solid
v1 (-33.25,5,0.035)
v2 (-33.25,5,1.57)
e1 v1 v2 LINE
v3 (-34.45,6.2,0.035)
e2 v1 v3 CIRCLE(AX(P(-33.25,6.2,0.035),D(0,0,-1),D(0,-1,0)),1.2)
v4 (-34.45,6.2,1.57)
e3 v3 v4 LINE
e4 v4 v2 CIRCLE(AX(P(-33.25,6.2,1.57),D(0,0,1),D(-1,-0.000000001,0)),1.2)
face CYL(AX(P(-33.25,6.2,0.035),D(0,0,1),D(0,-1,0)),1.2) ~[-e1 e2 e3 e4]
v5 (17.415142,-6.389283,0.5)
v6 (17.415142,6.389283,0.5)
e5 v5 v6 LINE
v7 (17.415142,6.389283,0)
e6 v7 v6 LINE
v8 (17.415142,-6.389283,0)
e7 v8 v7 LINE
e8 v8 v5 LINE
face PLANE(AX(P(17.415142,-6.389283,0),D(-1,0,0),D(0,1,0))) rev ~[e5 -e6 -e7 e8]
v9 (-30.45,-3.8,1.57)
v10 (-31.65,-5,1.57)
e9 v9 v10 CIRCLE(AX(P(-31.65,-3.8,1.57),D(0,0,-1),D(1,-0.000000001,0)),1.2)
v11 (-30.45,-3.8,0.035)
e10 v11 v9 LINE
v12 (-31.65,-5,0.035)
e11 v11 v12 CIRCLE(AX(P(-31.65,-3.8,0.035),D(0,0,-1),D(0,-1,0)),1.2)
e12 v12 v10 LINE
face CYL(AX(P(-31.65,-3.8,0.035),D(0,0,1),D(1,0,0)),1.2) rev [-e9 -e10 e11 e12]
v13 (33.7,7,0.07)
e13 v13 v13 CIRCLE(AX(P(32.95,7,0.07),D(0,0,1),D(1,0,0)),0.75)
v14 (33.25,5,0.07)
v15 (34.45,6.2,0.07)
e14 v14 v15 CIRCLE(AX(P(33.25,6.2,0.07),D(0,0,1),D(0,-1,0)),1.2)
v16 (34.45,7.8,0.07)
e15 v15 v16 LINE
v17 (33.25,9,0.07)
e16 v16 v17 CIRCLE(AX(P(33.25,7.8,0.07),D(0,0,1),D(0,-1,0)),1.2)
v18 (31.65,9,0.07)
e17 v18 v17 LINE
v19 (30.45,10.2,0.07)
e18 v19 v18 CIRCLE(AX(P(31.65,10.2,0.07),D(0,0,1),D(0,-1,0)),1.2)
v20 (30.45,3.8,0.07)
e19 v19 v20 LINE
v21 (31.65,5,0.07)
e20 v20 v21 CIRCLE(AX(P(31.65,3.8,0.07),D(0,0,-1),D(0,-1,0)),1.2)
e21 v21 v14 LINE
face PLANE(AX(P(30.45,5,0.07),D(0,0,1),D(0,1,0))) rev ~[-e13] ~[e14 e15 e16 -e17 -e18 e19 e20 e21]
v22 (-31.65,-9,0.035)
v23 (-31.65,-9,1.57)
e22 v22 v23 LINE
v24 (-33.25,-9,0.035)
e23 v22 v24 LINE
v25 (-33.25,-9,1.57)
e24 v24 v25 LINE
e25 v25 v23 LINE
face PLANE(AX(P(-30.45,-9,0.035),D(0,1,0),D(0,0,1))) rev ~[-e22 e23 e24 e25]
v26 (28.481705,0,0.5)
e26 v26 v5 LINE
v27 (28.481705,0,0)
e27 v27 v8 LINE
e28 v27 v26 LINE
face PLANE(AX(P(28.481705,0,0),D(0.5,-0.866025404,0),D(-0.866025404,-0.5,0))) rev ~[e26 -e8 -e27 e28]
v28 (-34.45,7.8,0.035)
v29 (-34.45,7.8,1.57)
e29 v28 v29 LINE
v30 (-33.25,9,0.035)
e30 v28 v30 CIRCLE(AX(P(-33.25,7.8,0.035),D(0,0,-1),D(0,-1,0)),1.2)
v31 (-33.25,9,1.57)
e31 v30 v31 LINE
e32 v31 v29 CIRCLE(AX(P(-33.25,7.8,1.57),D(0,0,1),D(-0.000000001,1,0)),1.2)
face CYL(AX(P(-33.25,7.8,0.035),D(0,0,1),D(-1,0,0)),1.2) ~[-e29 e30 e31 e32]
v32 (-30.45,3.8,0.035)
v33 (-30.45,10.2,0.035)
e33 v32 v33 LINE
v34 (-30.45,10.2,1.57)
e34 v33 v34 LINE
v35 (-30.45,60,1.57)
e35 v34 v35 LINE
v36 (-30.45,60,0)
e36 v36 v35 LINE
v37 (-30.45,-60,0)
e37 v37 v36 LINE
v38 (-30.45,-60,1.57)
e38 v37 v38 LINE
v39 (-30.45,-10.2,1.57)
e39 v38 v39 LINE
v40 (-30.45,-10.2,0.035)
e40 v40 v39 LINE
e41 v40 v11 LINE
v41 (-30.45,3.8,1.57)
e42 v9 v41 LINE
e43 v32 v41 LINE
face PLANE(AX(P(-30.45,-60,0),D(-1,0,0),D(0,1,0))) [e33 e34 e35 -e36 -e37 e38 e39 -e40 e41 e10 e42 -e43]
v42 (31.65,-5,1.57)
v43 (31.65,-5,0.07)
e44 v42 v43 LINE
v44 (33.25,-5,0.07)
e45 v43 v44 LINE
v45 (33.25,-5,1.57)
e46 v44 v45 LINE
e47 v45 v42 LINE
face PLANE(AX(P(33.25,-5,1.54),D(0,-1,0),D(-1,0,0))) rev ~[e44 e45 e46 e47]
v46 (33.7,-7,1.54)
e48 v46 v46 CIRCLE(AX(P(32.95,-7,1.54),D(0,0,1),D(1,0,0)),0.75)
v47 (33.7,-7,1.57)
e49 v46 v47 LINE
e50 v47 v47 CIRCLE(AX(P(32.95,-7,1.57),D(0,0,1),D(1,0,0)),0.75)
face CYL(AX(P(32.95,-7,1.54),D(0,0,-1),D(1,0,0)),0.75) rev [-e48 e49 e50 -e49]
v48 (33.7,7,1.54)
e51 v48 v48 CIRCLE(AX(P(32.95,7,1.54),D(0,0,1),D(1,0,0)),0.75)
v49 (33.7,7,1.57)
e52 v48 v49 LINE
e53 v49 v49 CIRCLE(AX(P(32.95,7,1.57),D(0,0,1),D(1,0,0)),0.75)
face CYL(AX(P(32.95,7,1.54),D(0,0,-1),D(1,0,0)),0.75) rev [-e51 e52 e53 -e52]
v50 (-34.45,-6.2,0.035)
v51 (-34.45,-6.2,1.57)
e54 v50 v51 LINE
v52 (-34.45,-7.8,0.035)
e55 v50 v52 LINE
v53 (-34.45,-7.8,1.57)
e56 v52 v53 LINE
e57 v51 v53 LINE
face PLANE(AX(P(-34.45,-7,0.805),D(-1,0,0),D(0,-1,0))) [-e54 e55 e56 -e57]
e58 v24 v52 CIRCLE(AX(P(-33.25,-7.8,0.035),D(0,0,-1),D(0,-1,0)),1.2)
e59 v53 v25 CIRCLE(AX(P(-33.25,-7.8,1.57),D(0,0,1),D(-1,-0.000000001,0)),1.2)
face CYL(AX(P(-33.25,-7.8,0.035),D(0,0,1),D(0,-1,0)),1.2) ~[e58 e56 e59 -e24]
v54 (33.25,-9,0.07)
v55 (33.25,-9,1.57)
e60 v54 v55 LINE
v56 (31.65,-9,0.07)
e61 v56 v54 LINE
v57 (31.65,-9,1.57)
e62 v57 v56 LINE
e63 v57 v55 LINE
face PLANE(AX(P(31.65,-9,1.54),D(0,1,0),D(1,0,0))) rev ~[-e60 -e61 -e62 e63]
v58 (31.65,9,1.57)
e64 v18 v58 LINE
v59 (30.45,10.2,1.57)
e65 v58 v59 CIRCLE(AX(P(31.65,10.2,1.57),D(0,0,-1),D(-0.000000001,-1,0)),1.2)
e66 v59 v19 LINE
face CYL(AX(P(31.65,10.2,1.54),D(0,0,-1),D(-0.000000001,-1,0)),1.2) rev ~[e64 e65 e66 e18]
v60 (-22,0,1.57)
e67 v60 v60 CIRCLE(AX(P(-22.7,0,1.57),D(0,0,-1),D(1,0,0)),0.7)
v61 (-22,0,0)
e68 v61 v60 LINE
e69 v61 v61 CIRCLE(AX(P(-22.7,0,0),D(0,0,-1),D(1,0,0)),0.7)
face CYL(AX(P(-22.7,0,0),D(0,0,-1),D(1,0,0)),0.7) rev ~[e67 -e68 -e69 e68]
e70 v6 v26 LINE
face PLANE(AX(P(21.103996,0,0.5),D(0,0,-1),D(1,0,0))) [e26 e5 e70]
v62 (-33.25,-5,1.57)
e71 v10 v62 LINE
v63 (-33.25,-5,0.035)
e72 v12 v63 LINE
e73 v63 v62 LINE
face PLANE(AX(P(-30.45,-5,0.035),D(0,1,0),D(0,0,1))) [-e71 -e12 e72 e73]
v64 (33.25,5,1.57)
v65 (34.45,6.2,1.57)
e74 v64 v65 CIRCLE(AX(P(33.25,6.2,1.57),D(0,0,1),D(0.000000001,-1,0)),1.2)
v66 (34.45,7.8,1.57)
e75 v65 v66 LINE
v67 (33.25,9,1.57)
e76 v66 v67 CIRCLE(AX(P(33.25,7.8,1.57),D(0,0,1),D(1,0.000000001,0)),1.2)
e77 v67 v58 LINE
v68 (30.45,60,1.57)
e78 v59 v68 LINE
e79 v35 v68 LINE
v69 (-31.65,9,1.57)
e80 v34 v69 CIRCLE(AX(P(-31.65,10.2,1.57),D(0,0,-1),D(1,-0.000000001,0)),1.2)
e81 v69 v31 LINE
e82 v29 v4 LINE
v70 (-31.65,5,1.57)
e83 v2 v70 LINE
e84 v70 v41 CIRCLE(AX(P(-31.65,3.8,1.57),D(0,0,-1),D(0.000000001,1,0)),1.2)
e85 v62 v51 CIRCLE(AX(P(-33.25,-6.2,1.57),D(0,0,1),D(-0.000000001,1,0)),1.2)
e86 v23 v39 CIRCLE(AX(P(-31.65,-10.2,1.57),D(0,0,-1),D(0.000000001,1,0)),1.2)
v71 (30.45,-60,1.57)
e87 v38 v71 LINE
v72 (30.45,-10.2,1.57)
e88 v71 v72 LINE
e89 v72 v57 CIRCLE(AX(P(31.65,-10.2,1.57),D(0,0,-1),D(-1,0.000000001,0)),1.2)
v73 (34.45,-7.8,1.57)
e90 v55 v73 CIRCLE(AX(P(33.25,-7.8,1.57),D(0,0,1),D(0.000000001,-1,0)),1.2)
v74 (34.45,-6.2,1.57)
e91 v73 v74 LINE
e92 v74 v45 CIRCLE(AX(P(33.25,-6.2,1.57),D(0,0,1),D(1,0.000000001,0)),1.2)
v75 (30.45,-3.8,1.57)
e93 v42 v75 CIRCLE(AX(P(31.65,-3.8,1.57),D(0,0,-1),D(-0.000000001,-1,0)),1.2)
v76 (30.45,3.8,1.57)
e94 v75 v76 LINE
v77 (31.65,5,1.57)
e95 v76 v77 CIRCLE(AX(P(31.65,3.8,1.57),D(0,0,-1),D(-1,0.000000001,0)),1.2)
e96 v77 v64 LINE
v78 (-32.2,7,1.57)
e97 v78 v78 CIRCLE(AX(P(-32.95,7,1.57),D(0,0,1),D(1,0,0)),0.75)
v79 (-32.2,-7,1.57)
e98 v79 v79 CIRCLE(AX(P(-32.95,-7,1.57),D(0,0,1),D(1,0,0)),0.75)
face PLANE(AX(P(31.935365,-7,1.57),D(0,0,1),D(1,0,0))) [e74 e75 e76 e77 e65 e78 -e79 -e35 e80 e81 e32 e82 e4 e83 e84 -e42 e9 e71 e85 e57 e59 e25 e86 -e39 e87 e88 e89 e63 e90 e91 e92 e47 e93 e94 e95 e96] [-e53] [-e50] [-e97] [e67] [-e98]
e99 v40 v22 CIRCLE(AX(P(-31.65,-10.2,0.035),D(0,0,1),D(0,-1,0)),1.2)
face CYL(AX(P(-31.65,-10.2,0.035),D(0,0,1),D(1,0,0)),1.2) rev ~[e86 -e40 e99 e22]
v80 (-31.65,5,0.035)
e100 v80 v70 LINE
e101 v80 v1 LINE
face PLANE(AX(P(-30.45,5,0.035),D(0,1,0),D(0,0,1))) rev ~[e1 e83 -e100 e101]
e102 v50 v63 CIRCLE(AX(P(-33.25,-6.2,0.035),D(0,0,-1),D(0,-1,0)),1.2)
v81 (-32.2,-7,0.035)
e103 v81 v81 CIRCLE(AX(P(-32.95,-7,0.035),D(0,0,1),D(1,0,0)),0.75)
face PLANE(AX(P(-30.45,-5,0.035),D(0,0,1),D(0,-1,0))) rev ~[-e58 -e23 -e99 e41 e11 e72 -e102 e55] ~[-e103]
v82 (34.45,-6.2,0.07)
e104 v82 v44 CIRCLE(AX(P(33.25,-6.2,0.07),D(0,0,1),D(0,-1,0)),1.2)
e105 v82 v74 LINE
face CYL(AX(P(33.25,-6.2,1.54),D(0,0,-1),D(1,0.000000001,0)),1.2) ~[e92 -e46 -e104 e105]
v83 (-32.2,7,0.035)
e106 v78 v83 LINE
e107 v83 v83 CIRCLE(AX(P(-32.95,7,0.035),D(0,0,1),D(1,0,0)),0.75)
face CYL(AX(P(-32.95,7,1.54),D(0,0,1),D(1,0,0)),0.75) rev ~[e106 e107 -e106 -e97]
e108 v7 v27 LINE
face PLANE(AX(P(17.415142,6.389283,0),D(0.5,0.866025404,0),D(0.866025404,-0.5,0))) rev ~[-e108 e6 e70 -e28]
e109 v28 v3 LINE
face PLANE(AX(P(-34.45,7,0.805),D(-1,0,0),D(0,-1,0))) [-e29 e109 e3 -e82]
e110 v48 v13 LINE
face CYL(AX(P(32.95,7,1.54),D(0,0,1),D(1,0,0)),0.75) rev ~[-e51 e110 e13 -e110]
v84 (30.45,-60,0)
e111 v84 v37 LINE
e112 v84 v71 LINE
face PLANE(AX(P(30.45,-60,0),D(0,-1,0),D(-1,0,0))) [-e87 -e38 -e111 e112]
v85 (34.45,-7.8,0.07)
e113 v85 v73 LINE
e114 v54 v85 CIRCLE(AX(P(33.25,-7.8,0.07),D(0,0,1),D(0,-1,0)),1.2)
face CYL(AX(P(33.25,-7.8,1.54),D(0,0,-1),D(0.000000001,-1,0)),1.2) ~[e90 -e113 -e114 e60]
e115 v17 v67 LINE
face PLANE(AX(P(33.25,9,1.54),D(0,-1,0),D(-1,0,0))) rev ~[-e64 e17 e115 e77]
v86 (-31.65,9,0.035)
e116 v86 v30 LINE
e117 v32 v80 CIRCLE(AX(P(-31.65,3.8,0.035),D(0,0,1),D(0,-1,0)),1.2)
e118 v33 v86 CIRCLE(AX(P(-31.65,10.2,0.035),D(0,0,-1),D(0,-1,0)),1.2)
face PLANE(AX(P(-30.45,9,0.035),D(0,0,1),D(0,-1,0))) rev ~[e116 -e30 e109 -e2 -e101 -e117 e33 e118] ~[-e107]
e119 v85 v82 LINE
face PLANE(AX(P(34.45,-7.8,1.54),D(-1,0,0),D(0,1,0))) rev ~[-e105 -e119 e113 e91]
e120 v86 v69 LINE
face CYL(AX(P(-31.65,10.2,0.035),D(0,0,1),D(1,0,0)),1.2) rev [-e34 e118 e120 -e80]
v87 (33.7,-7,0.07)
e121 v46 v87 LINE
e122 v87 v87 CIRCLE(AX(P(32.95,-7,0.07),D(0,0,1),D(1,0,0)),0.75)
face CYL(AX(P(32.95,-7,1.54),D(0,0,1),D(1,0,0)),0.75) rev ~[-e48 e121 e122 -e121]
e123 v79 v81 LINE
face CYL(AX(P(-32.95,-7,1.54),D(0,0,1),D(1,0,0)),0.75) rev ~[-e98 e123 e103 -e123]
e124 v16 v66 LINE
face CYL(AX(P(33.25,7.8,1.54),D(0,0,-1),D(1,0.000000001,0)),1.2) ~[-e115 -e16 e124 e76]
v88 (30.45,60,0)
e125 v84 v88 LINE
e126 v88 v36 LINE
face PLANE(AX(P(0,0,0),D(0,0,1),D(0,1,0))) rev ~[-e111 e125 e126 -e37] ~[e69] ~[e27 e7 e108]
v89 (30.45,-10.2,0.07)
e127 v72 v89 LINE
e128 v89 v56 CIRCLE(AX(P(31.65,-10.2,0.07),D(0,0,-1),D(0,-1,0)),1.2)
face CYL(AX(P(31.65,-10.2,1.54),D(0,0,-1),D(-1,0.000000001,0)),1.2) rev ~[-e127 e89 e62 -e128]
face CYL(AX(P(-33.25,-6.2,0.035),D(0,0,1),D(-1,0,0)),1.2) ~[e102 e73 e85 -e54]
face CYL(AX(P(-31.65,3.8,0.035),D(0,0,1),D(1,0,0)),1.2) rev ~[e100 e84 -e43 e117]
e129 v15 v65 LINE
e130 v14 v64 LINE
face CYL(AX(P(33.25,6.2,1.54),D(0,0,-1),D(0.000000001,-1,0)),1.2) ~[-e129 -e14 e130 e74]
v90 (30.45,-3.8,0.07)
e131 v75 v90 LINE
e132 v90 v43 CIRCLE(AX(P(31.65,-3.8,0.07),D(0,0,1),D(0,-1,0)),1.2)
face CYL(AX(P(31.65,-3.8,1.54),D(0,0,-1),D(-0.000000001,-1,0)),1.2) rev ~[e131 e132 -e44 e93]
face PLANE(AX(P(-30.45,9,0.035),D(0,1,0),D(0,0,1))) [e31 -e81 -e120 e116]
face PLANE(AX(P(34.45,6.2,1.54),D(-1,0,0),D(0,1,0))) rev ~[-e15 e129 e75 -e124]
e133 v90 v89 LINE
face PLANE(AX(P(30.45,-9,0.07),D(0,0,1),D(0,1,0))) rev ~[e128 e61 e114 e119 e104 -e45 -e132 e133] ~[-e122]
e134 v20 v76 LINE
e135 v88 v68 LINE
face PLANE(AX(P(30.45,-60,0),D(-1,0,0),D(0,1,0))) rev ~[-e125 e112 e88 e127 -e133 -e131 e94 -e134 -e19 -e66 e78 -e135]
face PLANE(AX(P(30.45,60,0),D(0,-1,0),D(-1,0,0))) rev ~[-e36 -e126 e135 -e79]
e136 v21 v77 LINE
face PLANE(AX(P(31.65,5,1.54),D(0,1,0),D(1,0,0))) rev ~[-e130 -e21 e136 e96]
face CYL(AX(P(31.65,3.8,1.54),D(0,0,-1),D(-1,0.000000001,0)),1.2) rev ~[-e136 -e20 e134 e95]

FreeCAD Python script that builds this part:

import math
import FreeCAD as App
import Part
import Sketcher

V = App.Vector
Q = App.Units.Quantity


def edges_at(feature, points):
    """Names of the edges that pass closest to the given points."""
    edges = feature.Shape.Edges
    near = lambda p: min(range(len(edges)), key=lambda i: edges[i].distToShape(Part.Vertex(*p))[0])
    return sorted({f"Edge{near(p) + 1}" for p in points})

doc = App.newDocument("Part")
params = doc.addObject("Spreadsheet::Sheet", "Params")
for row, (alias, value) in enumerate([
    ("sketch1_height", "120 mm"),
    ("sketch1_width", "60.9 mm"),
    ("pad1_length", "1.61 mm"),
    ("pocket1_length", "0.5 mm"),
    ("sketch3_width", "4 mm"),
    ("sketch3_height", "1.54 mm"),
    ("pad2_length", "4 mm"),
    ("sketch4_width", "4 mm"),
    ("sketch4_height", "1.47 mm"),
    ("pad3_length", "4 mm"),
    ("sketch5_diameter", "1.5 mm"),
    ("fillet_radius", "1.2 mm"),
    ("fillet2_radius", "1.2 mm"),
    ("sketch6_diameter", "1.4 mm"),
    ("sketch7_height", "120 mm"),
    ("sketch7_width", "60.9 mm"),
    ("pocket4_length", "0.04 mm"),
    ("sketch8_diameter", "1.5 mm"),
    ("sketch8_radius", "1.2 mm"),
    ("sketch8_width", "1.6 mm"),
    ("pad4_length", "0.03 mm"),
    ("sketch9_diameter", "1.5 mm"),
    ("sketch9_radius", "1.2 mm"),
    ("sketch9_width", "1.6 mm"),
    ("pocket5_length", "0.005 mm"),
], start=1):
    params.set(f"A{row}", alias)
    params.set(f"B{row}", "=" + value)
    params.setAlias(f"B{row}", alias)

body = doc.addObject("PartDesign::Body", "Body")

# Sketch on XY plane
sketch1 = body.newObject("Sketcher::SketchObject", "Sketch")
sketch1.AttachmentSupport = (doc.getObject("XY_Plane"), [""])
sketch1.MapMode = "FlatFace"
sketch1.addGeometry(Part.LineSegment(V(-30, -60, 0), V(30, -60, 0)), False)
sketch1.addGeometry(Part.LineSegment(V(30, -60, 0), V(30, 60, 0)), False)
sketch1.addGeometry(Part.LineSegment(V(30, 60, 0), V(-30, 60, 0)), False)
sketch1.addGeometry(Part.LineSegment(V(-30, 60, 0), V(-30, -60, 0)), False)
sketch1.addConstraint(Sketcher.Constraint("Coincident", 0, 2, 1, 1))
sketch1.addConstraint(Sketcher.Constraint("Coincident", 1, 2, 2, 1))
sketch1.addConstraint(Sketcher.Constraint("Coincident", 2, 2, 3, 1))
sketch1.addConstraint(Sketcher.Constraint("Coincident", 3, 2, 0, 1))
sketch1.addConstraint(Sketcher.Constraint("Horizontal", 0))
sketch1.addConstraint(Sketcher.Constraint("Vertical", 1))
sketch1.addConstraint(Sketcher.Constraint("Horizontal", 2))
sketch1.addConstraint(Sketcher.Constraint("Vertical", 3))
sketch1.addConstraint(Sketcher.Constraint("Symmetric", 0, 2, 2, 2, -1, 1))
sketch1.addConstraint(Sketcher.Constraint("DistanceY", 1, 1, 1, 2, 120.0))
sketch1.addConstraint(Sketcher.Constraint("DistanceX", 0, 1, 0, 2, 60.9))
sketch1.setExpression("Constraints[9]", "Params.sketch1_height")
sketch1.setExpression("Constraints[10]", "Params.sketch1_width")
pad1 = body.newObject("PartDesign::Pad", "Pad")
pad1.Profile = sketch1
pad1.setExpression("Length", "Params.pad1_length")

# Sketch on XY plane
sketch2 = body.newObject("Sketcher::SketchObject", "Sketch001")
sketch2.AttachmentSupport = (doc.getObject("XY_Plane"), [""])
sketch2.MapMode = "FlatFace"
sketch2.addGeometry(Part.LineSegment(V(28, 0, 0), V(17, -6, 0)), False)
sketch2.addGeometry(Part.LineSegment(V(17, -6, 0), V(17, 6, 0)), False)
sketch2.addGeometry(Part.LineSegment(V(17, 6, 0), V(28, 0, 0)), False)
sketch2.addConstraint(Sketcher.Constraint("Coincident", 0, 2, 1, 1))
sketch2.addConstraint(Sketcher.Constraint("Coincident", 1, 2, 2, 1))
sketch2.addConstraint(Sketcher.Constraint("Coincident", 2, 2, 0, 1))
sketch2.addConstraint(Sketcher.Constraint("Vertical", 1))
sketch2.addConstraint(Sketcher.Constraint("PointOnObject", 2, 2, -1))
sketch2.addConstraint(Sketcher.Constraint("Equal", 0, 2))
sketch2.addConstraint(Sketcher.Constraint("Angle", 0, Q("-150 deg")))
sketch2.addConstraint(Sketcher.Constraint("DistanceY", 1, 1, 1, 2, 12.778566))
sketch2.addConstraint(Sketcher.Constraint("DistanceX", -1, 1, 0, 2, 17.415142))
pocket1 = body.newObject("PartDesign::Pocket", "Pocket")
pocket1.Profile = sketch2
pocket1.setExpression("Length", "Params.pocket1_length")
pocket1.Reversed = True

# Sketch on YZ plane
sketch3 = body.newObject("Sketcher::SketchObject", "Sketch002")
sketch3.AttachmentSupport = (doc.getObject("YZ_Plane"), [""])
sketch3.MapMode = "FlatFace"
sketch3.AttachmentOffset = App.Placement(V(0, 0, -30.45), App.Rotation())
sketch3.addGeometry(Part.LineSegment(V(9, 1.6, 0), V(9, 0, 0)), False)
sketch3.addGeometry(Part.LineSegment(V(9, 0, 0), V(5, 0, 0)), False)
sketch3.addGeometry(Part.LineSegment(V(5, 0, 0), V(5, 1.6, 0)), False)
sketch3.addGeometry(Part.LineSegment(V(5, 1.6, 0), V(9, 1.6, 0)), False)
sketch3.addGeometry(Part.LineSegment(V(-5, 1.6, 0), V(-5, 0, 0)), False)
sketch3.addGeometry(Part.LineSegment(V(-5, 0, 0), V(-9, 0, 0)), False)
sketch3.addGeometry(Part.LineSegment(V(-9, 0, 0), V(-9, 1.6, 0)), False)
sketch3.addGeometry(Part.LineSegment(V(-9, 1.6, 0), V(-5, 1.6, 0)), False)
sketch3.addConstraint(Sketcher.Constraint("Coincident", 0, 2, 1, 1))
sketch3.addConstraint(Sketcher.Constraint("Coincident", 1, 2, 2, 1))
sketch3.addConstraint(Sketcher.Constraint("Coincident", 2, 2, 3, 1))
sketch3.addConstraint(Sketcher.Constraint("Coincident", 3, 2, 0, 1))
sketch3.addConstraint(Sketcher.Constraint("Coincident", 4, 2, 5, 1))
sketch3.addConstraint(Sketcher.Constraint("Coincident", 5, 2, 6, 1))
sketch3.addConstraint(Sketcher.Constraint("Coincident", 6, 2, 7, 1))
sketch3.addConstraint(Sketcher.Constraint("Coincident", 7, 2, 4, 1))
sketch3.addConstraint(Sketcher.Constraint("Vertical", 0))
sketch3.addConstraint(Sketcher.Constraint("Horizontal", 1))
sketch3.addConstraint(Sketcher.Constraint("Vertical", 2))
sketch3.addConstraint(Sketcher.Constraint("Horizontal", 3))
sketch3.addConstraint(Sketcher.Constraint("Vertical", 4))
sketch3.addConstraint(Sketcher.Constraint("Horizontal", 5))
sketch3.addConstraint(Sketcher.Constraint("Vertical", 6))
sketch3.addConstraint(Sketcher.Constraint("Horizontal", 7))
sketch3.addConstraint(Sketcher.Constraint("Symmetric", 1, 2, 4, 2, -2))
sketch3.addConstraint(Sketcher.Constraint("Symmetric", 3, 2, 6, 2, -2))
sketch3.addConstraint(Sketcher.Constraint("DistanceX", 1, 2, 1, 1, 4.0))
sketch3.addConstraint(Sketcher.Constraint("DistanceX", -1, 1, 0, 2, 9.0))
sketch3.addConstraint(Sketcher.Constraint("DistanceY", 0, 2, 0, 1, 1.54))
sketch3.addConstraint(Sketcher.Constraint("DistanceY", -1, 1, 0, 2, 0.035))
sketch3.setExpression("Constraints[18]", "Params.sketch3_width")
sketch3.setExpression("Constraints[20]", "Params.sketch3_height")
pad2 = body.newObject("PartDesign::Pad", "Pad001")
pad2.Profile = sketch3
pad2.setExpression("Length", "Params.pad2_length")
pad2.Reversed = True

# Sketch on YZ plane
sketch4 = body.newObject("Sketcher::SketchObject", "Sketch003")
sketch4.AttachmentSupport = (doc.getObject("YZ_Plane"), [""])
sketch4.MapMode = "FlatFace"
sketch4.AttachmentOffset = App.Placement(V(0, 0, 30.45), App.Rotation())
sketch4.addGeometry(Part.LineSegment(V(5, 1.5, 0), V(5, 0.1, 0)), False)
sketch4.addGeometry(Part.LineSegment(V(5, 0.1, 0), V(9, 0.1, 0)), False)
sketch4.addGeometry(Part.LineSegment(V(9, 0.1, 0), V(9, 1.5, 0)), False)
sketch4.addGeometry(Part.LineSegment(V(9, 1.5, 0), V(5, 1.5, 0)), False)
sketch4.addGeometry(Part.LineSegment(V(-9, 1.5, 0), V(-9, 0.1, 0)), False)
sketch4.addGeometry(Part.LineSegment(V(-9, 0.1, 0), V(-5, 0.1, 0)), False)
sketch4.addGeometry(Part.LineSegment(V(-5, 0.1, 0), V(-5, 1.5, 0)), False)
sketch4.addGeometry(Part.LineSegment(V(-5, 1.5, 0), V(-9, 1.5, 0)), False)
sketch4.addConstraint(Sketcher.Constraint("Coincident", 0, 2, 1, 1))
sketch4.addConstraint(Sketcher.Constraint("Coincident", 1, 2, 2, 1))
sketch4.addConstraint(Sketcher.Constraint("Coincident", 2, 2, 3, 1))
sketch4.addConstraint(Sketcher.Constraint("Coincident", 3, 2, 0, 1))
sketch4.addConstraint(Sketcher.Constraint("Coincident", 4, 2, 5, 1))
sketch4.addConstraint(Sketcher.Constraint("Coincident", 5, 2, 6, 1))
sketch4.addConstraint(Sketcher.Constraint("Coincident", 6, 2, 7, 1))
sketch4.addConstraint(Sketcher.Constraint("Coincident", 7, 2, 4, 1))
sketch4.addConstraint(Sketcher.Constraint("Vertical", 0))
sketch4.addConstraint(Sketcher.Constraint("Horizontal", 1))
sketch4.addConstraint(Sketcher.Constraint("Vertical", 2))
sketch4.addConstraint(Sketcher.Constraint("Horizontal", 3))
sketch4.addConstraint(Sketcher.Constraint("Vertical", 4))
sketch4.addConstraint(Sketcher.Constraint("Horizontal", 5))
sketch4.addConstraint(Sketcher.Constraint("Vertical", 6))
sketch4.addConstraint(Sketcher.Constraint("Horizontal", 7))
sketch4.addConstraint(Sketcher.Constraint("Symmetric", 1, 2, 4, 2, -2))
sketch4.addConstraint(Sketcher.Constraint("Symmetric", 3, 2, 6, 2, -2))
sketch4.addConstraint(Sketcher.Constraint("DistanceX", 1, 1, 1, 2, 4.0))
sketch4.addConstraint(Sketcher.Constraint("DistanceX", -1, 1, 0, 2, 5.0))
sketch4.addConstraint(Sketcher.Constraint("DistanceY", 0, 2, 0, 1, 1.47))
sketch4.addConstraint(Sketcher.Constraint("DistanceY", -1, 1, 0, 2, 0.07))
sketch4.setExpression("Constraints[18]", "Params.sketch4_width")
sketch4.setExpression("Constraints[20]", "Params.sketch4_height")
pad3 = body.newObject("PartDesign::Pad", "Pad002")
pad3.Profile = sketch4
pad3.setExpression("Length", "Params.pad3_length")

# Sketch on XY plane
sketch5 = body.newObject("Sketcher::SketchObject", "Sketch004")
sketch5.AttachmentSupport = (doc.getObject("XY_Plane"), [""])
sketch5.MapMode = "FlatFace"
sketch5.AttachmentOffset = App.Placement(V(0, 0, 1.54), App.Rotation())
sketch5.addGeometry(Part.Circle(V(33, 7, 0), V(0, 0, 1), 0.8), False)
sketch5.addGeometry(Part.Circle(V(33, -7, 0), V(0, 0, 1), 0.8), False)
sketch5.addGeometry(Part.Circle(V(-33, -7, 0), V(0, 0, 1), 0.8), False)
sketch5.addGeometry(Part.Circle(V(-33, 7, 0), V(0, 0, 1), 0.8), False)
sketch5.addConstraint(Sketcher.Constraint("Equal", 0, 1))
sketch5.addConstraint(Sketcher.Constraint("Equal", 1, 2))
sketch5.addConstraint(Sketcher.Constraint("Equal", 2, 3))
sketch5.addConstraint(Sketcher.Constraint("Symmetric", 0, 3, 2, 3, -1, 1))
sketch5.addConstraint(Sketcher.Constraint("Symmetric", 1, 3, 3, 3, -1, 1))
sketch5.addConstraint(Sketcher.Constraint("Symmetric", 1, 3, 2, 3, -2))
sketch5.addConstraint(Sketcher.Constraint("Diameter", 0, 1.5))
sketch5.addConstraint(Sketcher.Constraint("DistanceY", -1, 1, 0, 3, 7.0))
sketch5.addConstraint(Sketcher.Constraint("DistanceX", 2, 3, 1, 3, 65.9))
sketch5.setExpression("Constraints[6]", "Params.sketch5_diameter")
pocket2 = body.newObject("PartDesign::Pocket", "Pocket001")
pocket2.Profile = sketch5
pocket2.Type = "ThroughAll"
pocket2.Midplane = True
doc.recompute()

fillet = body.newObject("PartDesign::Fillet", "Fillet")
fillet.Base = (pocket2, edges_at(pocket2, [
    (-30.45, 5, 0.805),
    (-30.45, 9, 0.805),
    (-30.45, -9, 0.805),
    (-30.45, -5, 0.805),
    (30.45, 9, 0.805),
    (30.45, 5, 0.805),
    (30.45, -5, 0.805),
    (30.45, -9, 0.805),
]))
fillet.setExpression("Radius", "Params.fillet_radius")
doc.recompute()

fillet2 = body.newObject("PartDesign::Fillet", "Fillet001")
fillet2.Base = (fillet, edges_at(fillet, [
    (-34.45, 9, 0.805),
    (-34.45, 5, 0.805),
    (-34.45, -5, 0.805),
    (-34.45, -9, 0.805),
    (34.45, 5, 0.805),
    (34.45, 9, 0.805),
    (34.45, -9, 0.805),
    (34.45, -5, 0.805),
]))
fillet2.setExpression("Radius", "Params.fillet2_radius")

# Sketch on XY plane
sketch6 = body.newObject("Sketcher::SketchObject", "Sketch005")
sketch6.AttachmentSupport = (doc.getObject("XY_Plane"), [""])
sketch6.MapMode = "FlatFace"
sketch6.addGeometry(Part.Circle(V(-22.7, 0, 0), V(0, 0, 1), 0.7), False)
sketch6.addConstraint(Sketcher.Constraint("PointOnObject", 0, 3, -1))
sketch6.addConstraint(Sketcher.Constraint("Diameter", 0, 1.4))
sketch6.addConstraint(Sketcher.Constraint("DistanceX", 0, 3, -1, 1, 22.7))
sketch6.setExpression("Constraints[1]", "Params.sketch6_diameter")
pocket3 = body.newObject("PartDesign::Pocket", "Pocket002")
pocket3.Profile = sketch6
pocket3.Type = "ThroughAll"
pocket3.Reversed = True

# Sketch on XY plane
sketch7 = body.newObject("Sketcher::SketchObject", "Sketch006")
sketch7.AttachmentSupport = (doc.getObject("XY_Plane"), [""])
sketch7.MapMode = "FlatFace"
sketch7.AttachmentOffset = App.Placement(V(0, 0, 1.61), App.Rotation())
sketch7.addGeometry(Part.LineSegment(V(-30, 60, 0), V(-30, -60, 0)), False)
sketch7.addGeometry(Part.LineSegment(V(-30, -60, 0), V(30, -60, 0)), False)
sketch7.addGeometry(Part.LineSegment(V(30, -60, 0), V(30, 60, 0)), False)
sketch7.addGeometry(Part.LineSegment(V(30, 60, 0), V(-30, 60, 0)), False)
sketch7.addConstraint(Sketcher.Constraint("Coincident", 0, 2, 1, 1))
sketch7.addConstraint(Sketcher.Constraint("Coincident", 1, 2, 2, 1))
sketch7.addConstraint(Sketcher.Constraint("Coincident", 2, 2, 3, 1))
sketch7.addConstraint(Sketcher.Constraint("Coincident", 3, 2, 0, 1))
sketch7.addConstraint(Sketcher.Constraint("Vertical", 0))
sketch7.addConstraint(Sketcher.Constraint("Horizontal", 1))
sketch7.addConstraint(Sketcher.Constraint("Vertical", 2))
sketch7.addConstraint(Sketcher.Constraint("Horizontal", 3))
sketch7.addConstraint(Sketcher.Constraint("Symmetric", 0, 2, 2, 2, -1, 1))
sketch7.addConstraint(Sketcher.Constraint("DistanceY", 0, 2, 0, 1, 120.0))
sketch7.addConstraint(Sketcher.Constraint("DistanceX", 1, 1, 1, 2, 60.9))
sketch7.setExpression("Constraints[9]", "Params.sketch7_height")
sketch7.setExpression("Constraints[10]", "Params.sketch7_width")
pocket4 = body.newObject("PartDesign::Pocket", "Pocket003")
pocket4.Profile = sketch7
pocket4.setExpression("Length", "Params.pocket4_length")

# Sketch on XY plane
sketch8 = body.newObject("Sketcher::SketchObject", "Sketch007")
sketch8.AttachmentSupport = (doc.getObject("XY_Plane"), [""])
sketch8.MapMode = "FlatFace"
sketch8.AttachmentOffset = App.Placement(V(0, 0, 1.54), App.Rotation())
sketch8.addGeometry(Part.LineSegment(V(31.6, -9, 0), V(33.2, -9, 0)), False)
sketch8.addGeometry(Part.ArcOfCircle(Part.Circle(V(33.2, -7.8, 0), V(0, 0, 1), 1.2), math.radians(-90), math.radians(0)), False)
sketch8.addGeometry(Part.LineSegment(V(34.5, -7.8, 0), V(34.5, -6.2, 0)), False)
sketch8.addGeometry(Part.ArcOfCircle(Part.Circle(V(33.2, -6.2, 0), V(0, 0, 1), 1.2), math.radians(0), math.radians(90)), False)
sketch8.addGeometry(Part.LineSegment(V(33.2, -5, 0), V(31.6, -5, 0)), False)
sketch8.addGeometry(Part.ArcOfCircle(Part.Circle(V(31.7, -3.8, 0), V(0, 0, 1), 1.2), math.radians(-180), math.radians(-90)), False)
sketch8.addGeometry(Part.LineSegment(V(30.4, -3.8, 0), V(30.4, -10.2, 0)), False)
sketch8.addGeometry(Part.ArcOfCircle(Part.Circle(V(31.7, -10.2, 0), V(0, 0, 1), 1.2), math.radians(90), math.radians(180)), False)
sketch8.addGeometry(Part.Circle(V(33, -7, 0), V(0, 0, 1), 0.8), False)
sketch8.addGeometry(Part.LineSegment(V(34.5, 6.2, 0), V(34.5, 7.8, 0)), False)
sketch8.addGeometry(Part.ArcOfCircle(Part.Circle(V(33.2, 7.8, 0), V(0, 0, 1), 1.2), math.radians(0), math.radians(90)), False)
sketch8.addGeometry(Part.LineSegment(V(33.2, 9, 0), V(31.6, 9, 0)), False)
sketch8.addGeometry(Part.ArcOfCircle(Part.Circle(V(31.7, 10.2, 0), V(0, 0, 1), 1.2), math.radians(-180), math.radians(-90)), False)
sketch8.addGeometry(Part.LineSegment(V(30.4, 10.2, 0), V(30.4, 3.8, 0)), False)
sketch8.addGeometry(Part.ArcOfCircle(Part.Circle(V(31.7, 3.8, 0), V(0, 0, 1), 1.2), math.radians(90), math.radians(180)), False)
sketch8.addGeometry(Part.LineSegment(V(31.6, 5, 0), V(33.2, 5, 0)), False)
sketch8.addGeometry(Part.ArcOfCircle(Part.Circle(V(33.2, 6.2, 0), V(0, 0, 1), 1.2), math.radians(-90), math.radians(0)), False)
sketch8.addGeometry(Part.Circle(V(33, 7, 0), V(0, 0, 1), 0.8), False)
sketch8.addConstraint(Sketcher.Constraint("Tangent", 0, 2, 1, 1))
sketch8.addConstraint(Sketcher.Constraint("Tangent", 1, 2, 2, 1))
sketch8.addConstraint(Sketcher.Constraint("Tangent", 2, 2, 3, 1))
sketch8.addConstraint(Sketcher.Constraint("Tangent", 3, 2, 4, 1))
sketch8.addConstraint(Sketcher.Constraint("Tangent", 4, 2, 5, 2))
sketch8.addConstraint(Sketcher.Constraint("Tangent", 5, 1, 6, 1))
sketch8.addConstraint(Sketcher.Constraint("Tangent", 6, 2, 7, 2))
sketch8.addConstraint(Sketcher.Constraint("Tangent", 7, 1, 0, 1))
sketch8.addConstraint(Sketcher.Constraint("Tangent", 9, 2, 10, 1))
sketch8.addConstraint(Sketcher.Constraint("Tangent", 10, 2, 11, 1))
sketch8.addConstraint(Sketcher.Constraint("Tangent", 11, 2, 12, 2))
sketch8.addConstraint(Sketcher.Constraint("Tangent", 12, 1, 13, 1))
sketch8.addConstraint(Sketcher.Constraint("Tangent", 13, 2, 14, 2))
sketch8.addConstraint(Sketcher.Constraint("Tangent", 14, 1, 15, 1))
sketch8.addConstraint(Sketcher.Constraint("Tangent", 15, 2, 16, 1))
sketch8.addConstraint(Sketcher.Constraint("Tangent", 16, 2, 9, 1))
sketch8.addConstraint(Sketcher.Constraint("Horizontal", 0))
sketch8.addConstraint(Sketcher.Constraint("Vertical", 2))
sketch8.addConstraint(Sketcher.Constraint("Horizontal", 4))
sketch8.addConstraint(Sketcher.Constraint("Vertical", 6))
sketch8.addConstraint(Sketcher.Constraint("Vertical", 9))
sketch8.addConstraint(Sketcher.Constraint("Horizontal", 11))
sketch8.addConstraint(Sketcher.Constraint("Vertical", 13))
sketch8.addConstraint(Sketcher.Constraint("Horizontal", 15))
sketch8.addConstraint(Sketcher.Constraint("Equal", 1, 3))
sketch8.addConstraint(Sketcher.Constraint("Equal", 3, 5))
sketch8.addConstraint(Sketcher.Constraint("Equal", 5, 7))
sketch8.addConstraint(Sketcher.Constraint("Equal", 7, 10))
sketch8.addConstraint(Sketcher.Constraint("Equal", 10, 12))
sketch8.addConstraint(Sketcher.Constraint("Equal", 12, 14))
sketch8.addConstraint(Sketcher.Constraint("Equal", 14, 16))
sketch8.addConstraint(Sketcher.Constraint("Equal", 8, 17))
sketch8.addConstraint(Sketcher.Constraint("Symmetric", 1, 3, 10, 3, -1))
sketch8.addConstraint(Sketcher.Constraint("Symmetric", 5, 3, 14, 3, -1))
sketch8.addConstraint(Sketcher.Constraint("Symmetric", 8, 3, 17, 3, -1))
sketch8.addConstraint(Sketcher.Constraint("Equal", 15, 2))
sketch8.addConstraint(Sketcher.Constraint("Diameter", 8, 1.5))
sketch8.addConstraint(Sketcher.Constraint("Radius", 1, 1.2))
sketch8.addConstraint(Sketcher.Constraint("DistanceX", 0, 1, 0, 2, 1.6))
sketch8.addConstraint(Sketcher.Constraint("DistanceY", 8, 3, -1, 1, 7.0))
sketch8.addConstraint(Sketcher.Constraint("DistanceY", 0, 2, -1, 1, 9.0))
sketch8.addConstraint(Sketcher.Constraint("DistanceX", 8, 3, 1, 3, 0.3))
sketch8.addConstraint(Sketcher.Constraint("DistanceX", -1, 1, 1, 3, 33.25))
sketch8.setExpression("Constraints[36]", "Params.sketch8_diameter")
sketch8.setExpression("Constraints[37]", "Params.sketch8_radius")
sketch8.setExpression("Constraints[38]", "Params.sketch8_width")
pad4 = body.newObject("PartDesign::Pad", "Pad003")
pad4.Profile = sketch8
pad4.setExpression("Length", "Params.pad4_length")

# Sketch on XY plane
sketch9 = body.newObject("Sketcher::SketchObject", "Sketch008")
sketch9.AttachmentSupport = (doc.getObject("XY_Plane"), [""])
sketch9.MapMode = "FlatFace"
sketch9.AttachmentOffset = App.Placement(V(0, 0, 1.575), App.Rotation())
sketch9.addGeometry(Part.LineSegment(V(-34.5, 7.8, 0), V(-34.5, 6.2, 0)), False)
sketch9.addGeometry(Part.ArcOfCircle(Part.Circle(V(-33.2, 6.2, 0), V(0, 0, 1), 1.2), math.radians(-180), math.radians(-90)), False)
sketch9.addGeometry(Part.LineSegment(V(-33.2, 5, 0), V(-31.6, 5, 0)), False)
sketch9.addGeometry(Part.ArcOfCircle(Part.Circle(V(-31.7, 3.8, 0), V(0, 0, 1), 1.2), math.radians(0), math.radians(90)), False)
sketch9.addGeometry(Part.LineSegment(V(-30.4, 3.8, 0), V(-30.4, 10.2, 0)), False)
sketch9.addGeometry(Part.ArcOfCircle(Part.Circle(V(-31.7, 10.2, 0), V(0, 0, 1), 1.2), math.radians(-90), math.radians(0)), False)
sketch9.addGeometry(Part.LineSegment(V(-31.6, 9, 0), V(-33.2, 9, 0)), False)
sketch9.addGeometry(Part.ArcOfCircle(Part.Circle(V(-33.2, 7.8, 0), V(0, 0, 1), 1.2), math.radians(90), math.radians(180)), False)
sketch9.addGeometry(Part.Circle(V(-33, 7, 0), V(0, 0, 1), 0.8), False)
sketch9.addGeometry(Part.LineSegment(V(-34.5, -6.2, 0), V(-34.5, -7.8, 0)), False)
sketch9.addGeometry(Part.ArcOfCircle(Part.Circle(V(-33.2, -7.8, 0), V(0, 0, 1), 1.2), math.radians(-180), math.radians(-90)), False)
sketch9.addGeometry(Part.LineSegment(V(-33.2, -9, 0), V(-31.6, -9, 0)), False)
sketch9.addGeometry(Part.ArcOfCircle(Part.Circle(V(-31.7, -10.2, 0), V(0, 0, 1), 1.2), math.radians(0), math.radians(90)), False)
sketch9.addGeometry(Part.LineSegment(V(-30.4, -10.2, 0), V(-30.4, -3.8, 0)), False)
sketch9.addGeometry(Part.ArcOfCircle(Part.Circle(V(-31.7, -3.8, 0), V(0, 0, 1), 1.2), math.radians(-90), math.radians(0)), False)
sketch9.addGeometry(Part.LineSegment(V(-31.6, -5, 0), V(-33.2, -5, 0)), False)
sketch9.addGeometry(Part.ArcOfCircle(Part.Circle(V(-33.2, -6.2, 0), V(0, 0, 1), 1.2), math.radians(90), math.radians(180)), False)
sketch9.addGeometry(Part.Circle(V(-33, -7, 0), V(0, 0, 1), 0.8), False)
sketch9.addConstraint(Sketcher.Constraint("Tangent", 0, 2, 1, 1))
sketch9.addConstraint(Sketcher.Constraint("Tangent", 1, 2, 2, 1))
sketch9.addConstraint(Sketcher.Constraint("Tangent", 2, 2, 3, 2))
sketch9.addConstraint(Sketcher.Constraint("Tangent", 3, 1, 4, 1))
sketch9.addConstraint(Sketcher.Constraint("Tangent", 4, 2, 5, 2))
sketch9.addConstraint(Sketcher.Constraint("Tangent", 5, 1, 6, 1))
sketch9.addConstraint(Sketcher.Constraint("Tangent", 6, 2, 7, 1))
sketch9.addConstraint(Sketcher.Constraint("Tangent", 7, 2, 0, 1))
sketch9.addConstraint(Sketcher.Constraint("Tangent", 9, 2, 10, 1))
sketch9.addConstraint(Sketcher.Constraint("Tangent", 10, 2, 11, 1))
sketch9.addConstraint(Sketcher.Constraint("Tangent", 11, 2, 12, 2))
sketch9.addConstraint(Sketcher.Constraint("Tangent", 12, 1, 13, 1))
sketch9.addConstraint(Sketcher.Constraint("Tangent", 13, 2, 14, 2))
sketch9.addConstraint(Sketcher.Constraint("Tangent", 14, 1, 15, 1))
sketch9.addConstraint(Sketcher.Constraint("Tangent", 15, 2, 16, 1))
sketch9.addConstraint(Sketcher.Constraint("Tangent", 16, 2, 9, 1))
sketch9.addConstraint(Sketcher.Constraint("Vertical", 0))
sketch9.addConstraint(Sketcher.Constraint("Horizontal", 2))
sketch9.addConstraint(Sketcher.Constraint("Vertical", 4))
sketch9.addConstraint(Sketcher.Constraint("Horizontal", 6))
sketch9.addConstraint(Sketcher.Constraint("Vertical", 9))
sketch9.addConstraint(Sketcher.Constraint("Horizontal", 11))
sketch9.addConstraint(Sketcher.Constraint("Vertical", 13))
sketch9.addConstraint(Sketcher.Constraint("Horizontal", 15))
sketch9.addConstraint(Sketcher.Constraint("Equal", 1, 3))
sketch9.addConstraint(Sketcher.Constraint("Equal", 3, 5))
sketch9.addConstraint(Sketcher.Constraint("Equal", 5, 7))
sketch9.addConstraint(Sketcher.Constraint("Equal", 7, 10))
sketch9.addConstraint(Sketcher.Constraint("Equal", 10, 12))
sketch9.addConstraint(Sketcher.Constraint("Equal", 12, 14))
sketch9.addConstraint(Sketcher.Constraint("Equal", 14, 16))
sketch9.addConstraint(Sketcher.Constraint("Equal", 8, 17))
sketch9.addConstraint(Sketcher.Constraint("Symmetric", 7, 3, 10, 3, -1))
sketch9.addConstraint(Sketcher.Constraint("Symmetric", 3, 3, 14, 3, -1))
sketch9.addConstraint(Sketcher.Constraint("Symmetric", 8, 3, 17, 3, -1))
sketch9.addConstraint(Sketcher.Constraint("Equal", 15, 0))
sketch9.addConstraint(Sketcher.Constraint("Diameter", 8, 1.5))
sketch9.addConstraint(Sketcher.Constraint("Radius", 1, 1.2))
sketch9.addConstraint(Sketcher.Constraint("DistanceX", 2, 1, 2, 2, 1.6))
sketch9.addConstraint(Sketcher.Constraint("DistanceY", -1, 1, 8, 3, 7.0))
sketch9.addConstraint(Sketcher.Constraint("DistanceY", -1, 1, 1, 2, 5.0))
sketch9.addConstraint(Sketcher.Constraint("DistanceX", 1, 3, 8, 3, 0.3))
sketch9.addConstraint(Sketcher.Constraint("DistanceX", 1, 3, -1, 1, 33.25))
sketch9.setExpression("Constraints[36]", "Params.sketch9_diameter")
sketch9.setExpression("Constraints[37]", "Params.sketch9_radius")
sketch9.setExpression("Constraints[38]", "Params.sketch9_width")
pocket5 = body.newObject("PartDesign::Pocket", "Pocket004")
pocket5.Profile = sketch9
pocket5.setExpression("Length", "Params.pocket5_length")

doc.recompute()
